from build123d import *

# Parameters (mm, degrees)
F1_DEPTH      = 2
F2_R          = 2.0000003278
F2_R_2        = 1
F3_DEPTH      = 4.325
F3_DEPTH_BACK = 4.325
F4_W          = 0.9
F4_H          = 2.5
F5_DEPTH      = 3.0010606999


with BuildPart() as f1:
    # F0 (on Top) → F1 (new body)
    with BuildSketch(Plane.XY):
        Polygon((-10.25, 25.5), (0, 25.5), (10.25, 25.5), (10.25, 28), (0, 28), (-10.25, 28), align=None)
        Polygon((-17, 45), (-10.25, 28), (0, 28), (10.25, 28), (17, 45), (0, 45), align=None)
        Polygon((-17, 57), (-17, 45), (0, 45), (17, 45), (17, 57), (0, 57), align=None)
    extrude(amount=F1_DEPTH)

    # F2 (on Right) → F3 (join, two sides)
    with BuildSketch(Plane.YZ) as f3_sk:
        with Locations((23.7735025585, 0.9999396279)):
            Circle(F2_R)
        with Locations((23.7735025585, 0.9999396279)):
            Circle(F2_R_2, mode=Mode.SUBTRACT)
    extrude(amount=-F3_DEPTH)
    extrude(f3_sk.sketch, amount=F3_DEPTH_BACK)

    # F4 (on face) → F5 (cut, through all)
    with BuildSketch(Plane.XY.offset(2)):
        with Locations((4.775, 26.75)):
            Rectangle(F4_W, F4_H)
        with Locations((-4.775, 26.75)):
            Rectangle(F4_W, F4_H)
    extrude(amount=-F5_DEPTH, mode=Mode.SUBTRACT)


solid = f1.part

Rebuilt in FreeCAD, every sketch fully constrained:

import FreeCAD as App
import Part
import Sketcher

V = App.Vector
Q = App.Units.Quantity

doc = App.newDocument("Part")
params = doc.addObject("Spreadsheet::Sheet", "Params")
for row, (alias, value) in enumerate([
    ("sketch1_width", "34 mm"),
    ("sketch1_height", "12 mm"),
    ("sketch1_width2", "20.5 mm"),
    ("sketch1_height2", "2.5 mm"),
    ("pad1_length", "2 mm"),
    ("sketch2_diameter", "4.000001 mm"),
    ("sketch2_diameter2", "2 mm"),
    ("pad2_length", "4.325 mm"),
    ("pad2_length2", "4.325 mm"),
    ("sketch3_width", "0.9 mm"),
    ("sketch3_height", "2.5 mm"),
], start=1):
    params.set(f"A{row}", alias)
    params.set(f"B{row}", "=" + value)
    params.setAlias(f"B{row}", alias)

body = doc.addObject("PartDesign::Body", "Body")

# Sketch on XY plane
sketch1 = doc.addObject("Sketcher::SketchObject", "Sketch")
body.addObject(sketch1)
sketch1.AttachmentSupport = (doc.XY_Plane, [""])
sketch1.MapMode = "FlatFace"
sketch1.addGeometry(Part.LineSegment(V(-10.2, 25.5, 0), V(10.2, 25.5, 0)), False)
sketch1.addGeometry(Part.LineSegment(V(10.2, 25.5, 0), V(10.2, 28, 0)), False)
sketch1.addGeometry(Part.LineSegment(V(10.2, 28, 0), V(17, 45, 0)), False)
sketch1.addGeometry(Part.LineSegment(V(17, 45, 0), V(17, 57, 0)), False)
sketch1.addGeometry(Part.LineSegment(V(17, 57, 0), V(-17, 57, 0)), False)
sketch1.addGeometry(Part.LineSegment(V(-17, 57, 0), V(-17, 45, 0)), False)
sketch1.addGeometry(Part.LineSegment(V(-17, 45, 0), V(-10.2, 28, 0)), False)
sketch1.addGeometry(Part.LineSegment(V(-10.2, 28, 0), V(-10.2, 25.5, 0)), False)
sketch1.addConstraint(Sketcher.Constraint("Coincident", 0, 2, 1, 1))
sketch1.addConstraint(Sketcher.Constraint("Coincident", 1, 2, 2, 1))
sketch1.addConstraint(Sketcher.Constraint("Coincident", 2, 2, 3, 1))
sketch1.addConstraint(Sketcher.Constraint("Coincident", 3, 2, 4, 1))
sketch1.addConstraint(Sketcher.Constraint("Coincident", 4, 2, 5, 1))
sketch1.addConstraint(Sketcher.Constraint("Coincident", 5, 2, 6, 1))
sketch1.addConstraint(Sketcher.Constraint("Coincident", 6, 2, 7, 1))
sketch1.addConstraint(Sketcher.Constraint("Coincident", 7, 2, 0, 1))
sketch1.addConstraint(Sketcher.Constraint("Horizontal", 0))
sketch1.addConstraint(Sketcher.Constraint("Vertical", 1))
sketch1.addConstraint(Sketcher.Constraint("Vertical", 3))
sketch1.addConstraint(Sketcher.Constraint("Horizontal", 4))
sketch1.addConstraint(Sketcher.Constraint("Vertical", 5))
sketch1.addConstraint(Sketcher.Constraint("Vertical", 7))
sketch1.addConstraint(Sketcher.Constraint("Symmetric", 2, 2, 5, 2, -2))
sketch1.addConstraint(Sketcher.Constraint("Symmetric", 1, 2, 6, 2, -2))
sketch1.addConstraint(Sketcher.Constraint("DistanceX", 4, 2, 4, 1, Q("34 mm")))
sketch1.addConstraint(Sketcher.Constraint("DistanceY", 3, 1, 3, 2, Q("12 mm")))
sketch1.addConstraint(Sketcher.Constraint("DistanceX", 0, 1, 0, 2, Q("20.5 mm")))
sketch1.addConstraint(Sketcher.Constraint("DistanceY", 1, 1, 1, 2, Q("2.5 mm")))
sketch1.addConstraint(Sketcher.Constraint("DistanceY", -1, 1, 1, 2, Q("28 mm")))
sketch1.addConstraint(Sketcher.Constraint("DistanceY", -1, 1, 2, 2, Q("45 mm")))
sketch1.setExpression("Constraints[16]", "Params.sketch1_width")
sketch1.setExpression("Constraints[17]", "Params.sketch1_height")
sketch1.setExpression("Constraints[18]", "Params.sketch1_width2")
sketch1.setExpression("Constraints[19]", "Params.sketch1_height2")
pad1 = doc.addObject("PartDesign::Pad", "Pad")
body.addObject(pad1)
pad1.Profile = sketch1
pad1.setExpression("Length", "Params.pad1_length")

# Sketch on YZ plane
sketch2 = doc.addObject("Sketcher::SketchObject", "Sketch001")
body.addObject(sketch2)
sketch2.AttachmentSupport = (doc.YZ_Plane, [""])
sketch2.MapMode = "FlatFace"
sketch2.addGeometry(Part.Circle(V(23.8, 1, 0), V(0, 0, 1), 2), False)
sketch2.addGeometry(Part.Circle(V(23.8, 1, 0), V(0, 0, 1), 1), False)
sketch2.addConstraint(Sketcher.Constraint("Coincident", 1, 3, 0, 3))
sketch2.addConstraint(Sketcher.Constraint("Diameter", 0, Q("4.000001 mm")))
sketch2.addConstraint(Sketcher.Constraint("Diameter", 1, Q("2 mm")))
sketch2.addConstraint(Sketcher.Constraint("DistanceY", -1, 1, 0, 3, Q("0.99994 mm")))
sketch2.addConstraint(Sketcher.Constraint("DistanceX", -1, 1, 0, 3, Q("23.773503 mm")))
sketch2.setExpression("Constraints[1]", "Params.sketch2_diameter")
sketch2.setExpression("Constraints[2]", "Params.sketch2_diameter2")
pad2 = doc.addObject("PartDesign::Pad", "Pad001")
body.addObject(pad2)
pad2.Profile = sketch2
pad2.Type = "TwoLengths"
pad2.setExpression("Length", "Params.pad2_length")
pad2.setExpression("Length2", "Params.pad2_length2")
pad2.Reversed = True

# Sketch on XY plane
sketch3 = doc.addObject("Sketcher::SketchObject", "Sketch002")
body.addObject(sketch3)
sketch3.AttachmentSupport = (doc.XY_Plane, [""])
sketch3.MapMode = "FlatFace"
sketch3.AttachmentOffset = App.Placement(V(0, 0, 2), App.Rotation())
sketch3.addGeometry(Part.LineSegment(V(4.3, 28, 0), V(4.3, 25.5, 0)), False)
sketch3.addGeometry(Part.LineSegment(V(4.3, 25.5, 0), V(5.2, 25.5, 0)), False)
sketch3.addGeometry(Part.LineSegment(V(5.2, 25.5, 0), V(5.2, 28, 0)), False)
sketch3.addGeometry(Part.LineSegment(V(5.2, 28, 0), V(4.3, 28, 0)), False)
sketch3.addGeometry(Part.LineSegment(V(-5.2, 28, 0), V(-5.2, 25.5, 0)), False)
sketch3.addGeometry(Part.LineSegment(V(-5.2, 25.5, 0), V(-4.3, 25.5, 0)), False)
sketch3.addGeometry(Part.LineSegment(V(-4.3, 25.5, 0), V(-4.3, 28, 0)), False)
sketch3.addGeometry(Part.LineSegment(V(-4.3, 28, 0), V(-5.2, 28, 0)), False)
sketch3.addConstraint(Sketcher.Constraint("Coincident", 0, 2, 1, 1))
sketch3.addConstraint(Sketcher.Constraint("Coincident", 1, 2, 2, 1))
sketch3.addConstraint(Sketcher.Constraint("Coincident", 2, 2, 3, 1))
sketch3.addConstraint(Sketcher.Constraint("Coincident", 3, 2, 0, 1))
sketch3.addConstraint(Sketcher.Constraint("Coincident", 4, 2, 5, 1))
sketch3.addConstraint(Sketcher.Constraint("Coincident", 5, 2, 6, 1))
sketch3.addConstraint(Sketcher.Constraint("Coincident", 6, 2, 7, 1))
sketch3.addConstraint(Sketcher.Constraint("Coincident", 7, 2, 4, 1))
sketch3.addConstraint(Sketcher.Constraint("Vertical", 0))
sketch3.addConstraint(Sketcher.Constraint("Horizontal", 1))
sketch3.addConstraint(Sketcher.Constraint("Vertical", 2))
sketch3.addConstraint(Sketcher.Constraint("Horizontal", 3))
sketch3.addConstraint(Sketcher.Constraint("Vertical", 4))
sketch3.addConstraint(Sketcher.Constraint("Horizontal", 5))
sketch3.addConstraint(Sketcher.Constraint("Vertical", 6))
sketch3.addConstraint(Sketcher.Constraint("Horizontal", 7))
sketch3.addConstraint(Sketcher.Constraint("Symmetric", 1, 2, 4, 2, -2))
sketch3.addConstraint(Sketcher.Constraint("Symmetric", 3, 2, 6, 2, -2))
sketch3.addConstraint(Sketcher.Constraint("DistanceX", 1, 1, 1, 2, Q("0.9 mm")))
sketch3.addConstraint(Sketcher.Constraint("DistanceY", 0, 2, 0, 1, Q("2.5 mm")))
sketch3.addConstraint(Sketcher.Constraint("DistanceY", -1, 1, 2, 2, Q("28 mm")))
sketch3.addConstraint(Sketcher.Constraint("DistanceX", 4, 2, 0, 2, Q("9.55 mm")))
sketch3.setExpression("Constraints[18]", "Params.sketch3_width")
sketch3.setExpression("Constraints[19]", "Params.sketch3_height")
pocket1 = doc.addObject("PartDesign::Pocket", "Pocket")
body.addObject(pocket1)
pocket1.Profile = sketch3
pocket1.Type = "ThroughAll"

doc.recompute()
